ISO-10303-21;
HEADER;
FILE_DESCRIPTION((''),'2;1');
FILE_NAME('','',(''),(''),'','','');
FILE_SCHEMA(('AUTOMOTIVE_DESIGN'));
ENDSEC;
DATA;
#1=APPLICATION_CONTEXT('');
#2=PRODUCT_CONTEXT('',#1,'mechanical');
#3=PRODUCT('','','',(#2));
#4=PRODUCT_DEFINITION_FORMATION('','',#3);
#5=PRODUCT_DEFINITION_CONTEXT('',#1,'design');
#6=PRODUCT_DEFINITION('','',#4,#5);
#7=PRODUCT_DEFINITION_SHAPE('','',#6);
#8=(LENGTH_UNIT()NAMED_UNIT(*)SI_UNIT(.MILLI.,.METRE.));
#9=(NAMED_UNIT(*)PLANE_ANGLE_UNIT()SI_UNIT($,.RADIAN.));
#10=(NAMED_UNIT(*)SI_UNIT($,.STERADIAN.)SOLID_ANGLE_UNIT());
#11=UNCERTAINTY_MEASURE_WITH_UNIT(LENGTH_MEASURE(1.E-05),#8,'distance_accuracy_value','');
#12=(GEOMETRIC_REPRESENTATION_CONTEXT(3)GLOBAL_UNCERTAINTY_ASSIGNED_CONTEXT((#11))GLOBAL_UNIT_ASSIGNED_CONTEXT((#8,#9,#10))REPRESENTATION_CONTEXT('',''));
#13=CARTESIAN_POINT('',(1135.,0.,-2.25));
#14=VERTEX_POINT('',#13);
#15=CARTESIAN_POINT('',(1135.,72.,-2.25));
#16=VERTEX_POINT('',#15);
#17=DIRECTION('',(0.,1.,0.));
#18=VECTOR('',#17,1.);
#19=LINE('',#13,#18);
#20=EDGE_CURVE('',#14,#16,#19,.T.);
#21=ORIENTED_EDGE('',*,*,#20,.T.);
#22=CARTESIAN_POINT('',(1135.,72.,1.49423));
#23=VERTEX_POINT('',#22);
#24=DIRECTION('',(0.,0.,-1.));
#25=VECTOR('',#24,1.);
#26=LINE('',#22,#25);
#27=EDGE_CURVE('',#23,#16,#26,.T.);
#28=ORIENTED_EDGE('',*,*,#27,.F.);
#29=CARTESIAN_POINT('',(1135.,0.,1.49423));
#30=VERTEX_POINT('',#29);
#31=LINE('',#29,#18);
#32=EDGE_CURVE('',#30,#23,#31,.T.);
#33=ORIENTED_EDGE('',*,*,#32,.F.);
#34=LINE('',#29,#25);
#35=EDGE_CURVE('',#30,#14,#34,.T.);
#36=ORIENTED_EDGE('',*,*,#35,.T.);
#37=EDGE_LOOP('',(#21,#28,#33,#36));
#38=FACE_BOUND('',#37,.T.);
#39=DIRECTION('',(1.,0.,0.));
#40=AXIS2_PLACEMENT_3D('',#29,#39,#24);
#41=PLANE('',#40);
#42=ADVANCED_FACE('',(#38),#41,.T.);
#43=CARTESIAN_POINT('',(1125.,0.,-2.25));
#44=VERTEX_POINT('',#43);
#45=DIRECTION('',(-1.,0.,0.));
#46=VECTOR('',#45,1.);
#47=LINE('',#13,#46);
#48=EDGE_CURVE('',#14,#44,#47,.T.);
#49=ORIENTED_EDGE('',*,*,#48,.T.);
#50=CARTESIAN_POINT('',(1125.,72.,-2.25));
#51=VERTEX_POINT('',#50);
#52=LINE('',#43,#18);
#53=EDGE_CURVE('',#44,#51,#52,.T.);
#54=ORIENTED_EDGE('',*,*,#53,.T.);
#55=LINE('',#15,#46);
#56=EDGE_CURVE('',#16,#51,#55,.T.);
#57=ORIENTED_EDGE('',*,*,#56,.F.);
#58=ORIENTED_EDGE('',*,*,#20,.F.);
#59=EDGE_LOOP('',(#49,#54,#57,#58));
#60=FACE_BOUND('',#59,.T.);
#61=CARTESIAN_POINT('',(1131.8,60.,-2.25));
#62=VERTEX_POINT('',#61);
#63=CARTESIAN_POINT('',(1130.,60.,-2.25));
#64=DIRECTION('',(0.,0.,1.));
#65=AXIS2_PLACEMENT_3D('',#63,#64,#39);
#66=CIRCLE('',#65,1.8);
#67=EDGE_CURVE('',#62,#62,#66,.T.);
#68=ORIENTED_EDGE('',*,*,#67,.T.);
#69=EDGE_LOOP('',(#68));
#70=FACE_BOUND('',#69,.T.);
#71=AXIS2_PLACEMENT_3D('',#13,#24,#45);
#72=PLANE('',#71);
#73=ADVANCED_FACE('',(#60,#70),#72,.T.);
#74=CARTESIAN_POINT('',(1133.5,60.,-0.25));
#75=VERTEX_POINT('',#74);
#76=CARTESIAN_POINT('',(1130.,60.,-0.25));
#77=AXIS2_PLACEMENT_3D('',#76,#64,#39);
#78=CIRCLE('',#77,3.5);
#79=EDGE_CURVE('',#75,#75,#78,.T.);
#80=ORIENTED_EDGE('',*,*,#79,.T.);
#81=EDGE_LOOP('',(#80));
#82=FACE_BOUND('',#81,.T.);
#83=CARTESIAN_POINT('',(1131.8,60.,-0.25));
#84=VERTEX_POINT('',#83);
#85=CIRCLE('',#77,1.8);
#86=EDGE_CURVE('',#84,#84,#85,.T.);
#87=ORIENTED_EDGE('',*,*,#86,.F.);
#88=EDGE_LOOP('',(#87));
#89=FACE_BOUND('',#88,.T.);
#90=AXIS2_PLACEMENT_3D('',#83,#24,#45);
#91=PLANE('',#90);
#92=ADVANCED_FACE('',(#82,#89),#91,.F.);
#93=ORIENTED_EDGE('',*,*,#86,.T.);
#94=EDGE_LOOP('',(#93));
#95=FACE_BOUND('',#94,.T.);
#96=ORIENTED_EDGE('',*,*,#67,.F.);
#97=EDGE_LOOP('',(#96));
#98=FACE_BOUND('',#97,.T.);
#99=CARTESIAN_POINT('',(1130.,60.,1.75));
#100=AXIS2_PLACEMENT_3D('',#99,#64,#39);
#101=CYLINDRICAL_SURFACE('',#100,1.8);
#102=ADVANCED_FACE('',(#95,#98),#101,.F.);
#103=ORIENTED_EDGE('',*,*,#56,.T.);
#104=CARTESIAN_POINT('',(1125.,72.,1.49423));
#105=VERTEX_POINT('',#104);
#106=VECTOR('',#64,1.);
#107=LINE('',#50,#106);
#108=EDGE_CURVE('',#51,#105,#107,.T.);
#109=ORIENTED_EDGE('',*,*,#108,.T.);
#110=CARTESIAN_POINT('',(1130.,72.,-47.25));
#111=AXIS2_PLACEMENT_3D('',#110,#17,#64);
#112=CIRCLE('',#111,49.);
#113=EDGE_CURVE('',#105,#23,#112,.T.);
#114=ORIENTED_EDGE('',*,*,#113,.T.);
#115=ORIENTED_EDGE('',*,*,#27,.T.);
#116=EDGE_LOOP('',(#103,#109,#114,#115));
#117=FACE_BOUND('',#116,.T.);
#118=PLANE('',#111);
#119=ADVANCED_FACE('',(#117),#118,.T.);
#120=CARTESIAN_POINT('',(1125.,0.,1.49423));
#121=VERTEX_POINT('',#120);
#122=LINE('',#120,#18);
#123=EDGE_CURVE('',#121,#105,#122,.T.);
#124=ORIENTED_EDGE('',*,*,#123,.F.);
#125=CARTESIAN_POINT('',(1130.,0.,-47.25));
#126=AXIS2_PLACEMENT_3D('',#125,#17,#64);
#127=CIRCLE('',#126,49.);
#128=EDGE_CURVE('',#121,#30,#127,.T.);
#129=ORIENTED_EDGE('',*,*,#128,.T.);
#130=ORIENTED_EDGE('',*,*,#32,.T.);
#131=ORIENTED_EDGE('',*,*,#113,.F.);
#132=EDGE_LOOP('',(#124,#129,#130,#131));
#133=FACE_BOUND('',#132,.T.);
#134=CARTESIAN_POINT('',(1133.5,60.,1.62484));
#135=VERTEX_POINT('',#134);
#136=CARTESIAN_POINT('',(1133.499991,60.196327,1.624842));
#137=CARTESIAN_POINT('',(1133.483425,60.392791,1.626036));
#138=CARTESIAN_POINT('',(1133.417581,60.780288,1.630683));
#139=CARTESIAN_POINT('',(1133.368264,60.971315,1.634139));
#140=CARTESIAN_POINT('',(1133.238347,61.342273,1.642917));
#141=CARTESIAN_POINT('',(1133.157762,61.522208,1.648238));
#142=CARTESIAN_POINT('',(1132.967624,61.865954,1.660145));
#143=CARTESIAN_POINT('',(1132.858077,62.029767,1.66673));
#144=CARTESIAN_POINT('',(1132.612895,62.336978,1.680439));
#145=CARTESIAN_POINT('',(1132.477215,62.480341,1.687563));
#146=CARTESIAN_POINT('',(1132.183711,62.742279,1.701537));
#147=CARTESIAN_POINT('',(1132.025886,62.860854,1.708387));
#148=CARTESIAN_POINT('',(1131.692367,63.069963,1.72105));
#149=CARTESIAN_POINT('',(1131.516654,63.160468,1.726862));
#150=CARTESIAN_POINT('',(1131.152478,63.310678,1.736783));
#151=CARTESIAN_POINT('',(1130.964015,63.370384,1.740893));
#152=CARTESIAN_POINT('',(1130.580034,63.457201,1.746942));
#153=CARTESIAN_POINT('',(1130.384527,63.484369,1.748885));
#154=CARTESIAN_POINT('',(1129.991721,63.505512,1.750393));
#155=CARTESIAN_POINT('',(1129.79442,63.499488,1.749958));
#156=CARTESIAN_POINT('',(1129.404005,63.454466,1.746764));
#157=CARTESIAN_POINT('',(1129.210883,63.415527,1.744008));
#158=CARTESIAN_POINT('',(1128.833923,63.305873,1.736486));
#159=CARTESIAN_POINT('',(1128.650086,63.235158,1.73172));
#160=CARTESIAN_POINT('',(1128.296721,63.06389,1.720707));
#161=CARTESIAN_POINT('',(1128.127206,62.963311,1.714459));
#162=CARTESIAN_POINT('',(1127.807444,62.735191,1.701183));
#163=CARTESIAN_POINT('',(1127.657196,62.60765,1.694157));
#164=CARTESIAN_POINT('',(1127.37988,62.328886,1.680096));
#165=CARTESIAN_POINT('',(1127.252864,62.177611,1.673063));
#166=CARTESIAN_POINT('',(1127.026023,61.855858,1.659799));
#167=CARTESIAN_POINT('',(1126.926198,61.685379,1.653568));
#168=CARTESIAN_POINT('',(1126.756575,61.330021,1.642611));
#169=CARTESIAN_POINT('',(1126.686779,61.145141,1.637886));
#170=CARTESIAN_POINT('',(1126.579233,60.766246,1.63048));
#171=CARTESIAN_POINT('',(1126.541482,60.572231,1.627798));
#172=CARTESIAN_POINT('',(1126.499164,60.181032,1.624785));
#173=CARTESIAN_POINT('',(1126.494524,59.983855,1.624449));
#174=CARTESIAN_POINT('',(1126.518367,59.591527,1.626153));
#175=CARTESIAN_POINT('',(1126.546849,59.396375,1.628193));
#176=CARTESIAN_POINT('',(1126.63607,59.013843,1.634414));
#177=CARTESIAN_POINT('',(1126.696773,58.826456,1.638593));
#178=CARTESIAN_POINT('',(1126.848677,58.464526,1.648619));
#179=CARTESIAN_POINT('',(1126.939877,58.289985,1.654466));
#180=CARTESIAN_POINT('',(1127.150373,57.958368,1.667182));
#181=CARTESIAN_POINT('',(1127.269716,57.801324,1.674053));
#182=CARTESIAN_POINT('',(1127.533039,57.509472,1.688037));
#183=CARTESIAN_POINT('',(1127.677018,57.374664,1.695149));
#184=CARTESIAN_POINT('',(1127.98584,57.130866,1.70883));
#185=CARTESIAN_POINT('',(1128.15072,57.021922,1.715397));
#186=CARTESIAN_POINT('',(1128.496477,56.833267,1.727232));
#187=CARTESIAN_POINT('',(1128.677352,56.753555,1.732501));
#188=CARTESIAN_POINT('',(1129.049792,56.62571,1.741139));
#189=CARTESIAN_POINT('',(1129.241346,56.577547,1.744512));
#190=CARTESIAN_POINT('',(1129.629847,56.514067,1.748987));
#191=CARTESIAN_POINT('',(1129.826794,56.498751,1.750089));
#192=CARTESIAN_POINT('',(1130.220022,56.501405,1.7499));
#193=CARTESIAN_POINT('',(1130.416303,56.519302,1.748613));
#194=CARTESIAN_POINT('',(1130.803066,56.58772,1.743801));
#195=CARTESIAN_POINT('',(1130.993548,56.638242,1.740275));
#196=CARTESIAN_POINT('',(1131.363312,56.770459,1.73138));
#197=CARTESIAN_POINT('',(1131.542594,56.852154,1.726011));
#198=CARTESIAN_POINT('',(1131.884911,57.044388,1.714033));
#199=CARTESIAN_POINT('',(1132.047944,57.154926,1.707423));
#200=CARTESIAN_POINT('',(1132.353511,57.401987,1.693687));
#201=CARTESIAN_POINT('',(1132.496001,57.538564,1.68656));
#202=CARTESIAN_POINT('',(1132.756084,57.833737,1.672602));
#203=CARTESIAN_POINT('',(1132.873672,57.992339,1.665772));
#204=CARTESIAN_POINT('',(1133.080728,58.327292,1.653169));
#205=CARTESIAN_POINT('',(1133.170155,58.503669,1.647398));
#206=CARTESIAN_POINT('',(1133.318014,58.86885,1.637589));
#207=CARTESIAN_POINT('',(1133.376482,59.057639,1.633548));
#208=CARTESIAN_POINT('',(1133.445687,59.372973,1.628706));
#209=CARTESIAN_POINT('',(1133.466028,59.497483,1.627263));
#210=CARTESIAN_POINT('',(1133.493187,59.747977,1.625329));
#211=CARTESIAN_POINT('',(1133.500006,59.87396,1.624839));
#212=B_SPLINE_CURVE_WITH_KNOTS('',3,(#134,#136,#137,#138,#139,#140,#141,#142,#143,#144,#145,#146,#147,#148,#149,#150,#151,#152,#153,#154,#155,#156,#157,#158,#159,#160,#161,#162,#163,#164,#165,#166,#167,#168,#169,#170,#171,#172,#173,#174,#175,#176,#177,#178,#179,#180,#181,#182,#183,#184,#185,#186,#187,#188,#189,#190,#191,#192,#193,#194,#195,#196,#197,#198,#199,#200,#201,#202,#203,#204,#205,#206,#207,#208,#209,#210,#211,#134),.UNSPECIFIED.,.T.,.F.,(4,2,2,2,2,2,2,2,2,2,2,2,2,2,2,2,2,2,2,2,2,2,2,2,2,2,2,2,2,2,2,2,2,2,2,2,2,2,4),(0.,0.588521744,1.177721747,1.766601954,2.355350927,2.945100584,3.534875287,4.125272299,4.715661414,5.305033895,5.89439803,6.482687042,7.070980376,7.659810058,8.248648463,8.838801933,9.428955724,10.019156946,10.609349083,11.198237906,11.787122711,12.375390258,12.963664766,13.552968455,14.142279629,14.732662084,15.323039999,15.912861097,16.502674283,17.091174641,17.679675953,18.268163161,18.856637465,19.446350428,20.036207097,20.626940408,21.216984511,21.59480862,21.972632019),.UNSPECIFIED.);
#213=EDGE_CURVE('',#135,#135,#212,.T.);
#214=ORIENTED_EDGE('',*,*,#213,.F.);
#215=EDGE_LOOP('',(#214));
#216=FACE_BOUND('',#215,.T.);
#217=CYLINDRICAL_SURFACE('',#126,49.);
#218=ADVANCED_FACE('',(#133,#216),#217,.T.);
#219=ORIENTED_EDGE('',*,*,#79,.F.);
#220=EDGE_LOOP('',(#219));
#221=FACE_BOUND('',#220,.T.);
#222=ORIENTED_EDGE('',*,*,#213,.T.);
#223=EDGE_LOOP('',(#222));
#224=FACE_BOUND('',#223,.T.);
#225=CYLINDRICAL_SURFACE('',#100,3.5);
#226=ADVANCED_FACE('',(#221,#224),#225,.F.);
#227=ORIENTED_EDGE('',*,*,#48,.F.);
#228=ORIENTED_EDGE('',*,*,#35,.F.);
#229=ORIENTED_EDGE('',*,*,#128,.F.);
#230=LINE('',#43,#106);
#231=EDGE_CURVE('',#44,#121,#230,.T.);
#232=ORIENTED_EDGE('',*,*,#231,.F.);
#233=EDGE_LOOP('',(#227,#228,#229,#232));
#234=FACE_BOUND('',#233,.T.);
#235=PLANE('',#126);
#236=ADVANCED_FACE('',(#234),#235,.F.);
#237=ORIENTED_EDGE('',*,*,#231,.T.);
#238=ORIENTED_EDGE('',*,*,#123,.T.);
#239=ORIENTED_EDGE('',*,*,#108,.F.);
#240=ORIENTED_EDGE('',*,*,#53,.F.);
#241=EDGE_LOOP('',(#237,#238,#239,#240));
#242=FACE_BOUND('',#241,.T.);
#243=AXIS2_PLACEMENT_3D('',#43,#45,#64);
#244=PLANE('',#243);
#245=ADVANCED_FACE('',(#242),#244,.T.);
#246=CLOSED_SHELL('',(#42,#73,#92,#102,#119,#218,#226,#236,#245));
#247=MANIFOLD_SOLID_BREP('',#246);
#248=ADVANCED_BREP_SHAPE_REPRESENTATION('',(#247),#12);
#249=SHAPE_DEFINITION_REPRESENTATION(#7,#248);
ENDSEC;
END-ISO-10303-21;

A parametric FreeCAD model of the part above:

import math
import FreeCAD as App
import Part
import Sketcher

doc = App.newDocument("Part")
body = doc.addObject("PartDesign::Body", "Body")

# Sketch on XZ plane
sketch1 = body.newObject("Sketcher::SketchObject", "Sketch")
sketch1.AttachmentSupport = (doc.getObject("XZ_Plane"), [""])
sketch1.MapMode = "FlatFace"
sketch1.AttachmentOffset = App.Placement(App.Vector(0, 0, -72), App.Rotation())
sketch1.addGeometry(Part.LineSegment(App.Vector(1135, 1.5, 0), App.Vector(1135, -2.2, 0)), False)
sketch1.addGeometry(Part.LineSegment(App.Vector(1135, -2.2, 0), App.Vector(1125, -2.2, 0)), False)
sketch1.addGeometry(Part.LineSegment(App.Vector(1125, -2.2, 0), App.Vector(1125, 1.5, 0)), False)
sketch1.addGeometry(Part.ArcOfCircle(Part.Circle(App.Vector(1130, -47.3, 0), App.Vector(0, 0, 1), 49), math.radians(84.14), math.radians(95.86)), False)
sketch1.addConstraint(Sketcher.Constraint("Coincident", 0, 2, 1, 1))
sketch1.addConstraint(Sketcher.Constraint("Coincident", 1, 2, 2, 1))
sketch1.addConstraint(Sketcher.Constraint("Coincident", 2, 2, 3, 2))
sketch1.addConstraint(Sketcher.Constraint("Coincident", 3, 1, 0, 1))
sketch1.addConstraint(Sketcher.Constraint("Vertical", 0))
sketch1.addConstraint(Sketcher.Constraint("Horizontal", 1))
sketch1.addConstraint(Sketcher.Constraint("Vertical", 2))
sketch1.addConstraint(Sketcher.Constraint("Horizontal", 2, 2, 3, 1))
sketch1.addConstraint(Sketcher.Constraint("Radius", 3, 49.0))
sketch1.addConstraint(Sketcher.Constraint("DistanceX", 1, 2, 1, 1, 10.0))
sketch1.addConstraint(Sketcher.Constraint("DistanceX", -1, 1, 3, 3, 1130.0))
sketch1.addConstraint(Sketcher.Constraint("DistanceY", 3, 3, 0, 2, 45.0))
sketch1.addConstraint(Sketcher.Constraint("DistanceY", 3, 3, -1, 1, 47.25))
pad1 = body.newObject("PartDesign::Pad", "Pad")
pad1.Profile = sketch1
pad1.Length = 72

# Sketch on XY plane
sketch2 = body.newObject("Sketcher::SketchObject", "Sketch001")
sketch2.AttachmentSupport = (doc.getObject("XY_Plane"), [""])
sketch2.MapMode = "FlatFace"
sketch2.AttachmentOffset = App.Placement(App.Vector(0, 0, 1.75), App.Rotation())
sketch2.addGeometry(Part.Circle(App.Vector(1130, 60, 0), App.Vector(0, 0, 1), 1.8), False)
sketch2.addConstraint(Sketcher.Constraint("Diameter", 0, 3.6))
sketch2.addConstraint(Sketcher.Constraint("DistanceX", -1, 1, 0, 3, 1130.0))
sketch2.addConstraint(Sketcher.Constraint("DistanceY", -1, 1, 0, 3, 60.0))
doc.recompute()
hole = body.newObject("PartDesign::Hole", "Hole")
hole.Profile = sketch2
hole.ThreadType = "None"
hole.Diameter = 3.6
hole.DepthType = "Dimension"
hole.Depth = 4
hole.DrillPoint = "Flat"
hole.HoleCutType = "Counterbore"
hole.HoleCutDiameter = 7
hole.HoleCutDepth = 2

doc.recompute()
